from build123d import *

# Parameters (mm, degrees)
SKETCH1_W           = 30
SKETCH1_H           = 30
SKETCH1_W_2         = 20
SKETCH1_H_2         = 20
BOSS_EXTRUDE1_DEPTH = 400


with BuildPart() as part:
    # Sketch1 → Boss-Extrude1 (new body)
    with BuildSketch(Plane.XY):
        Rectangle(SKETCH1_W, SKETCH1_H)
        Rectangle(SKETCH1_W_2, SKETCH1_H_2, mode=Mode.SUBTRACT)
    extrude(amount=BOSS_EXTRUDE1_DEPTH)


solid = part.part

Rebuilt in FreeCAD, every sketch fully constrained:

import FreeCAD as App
import Part
import Sketcher

V = App.Vector
Q = App.Units.Quantity


def add_polygon(sketch, points):
    """Adds a closed chain of lines whose ends are joined by coincident constraints."""
    first, n = sketch.GeometryCount, len(points)
    for a, b in zip(points, points[1:] + points[:1]):
        sketch.addGeometry(Part.LineSegment(App.Vector(*a, 0), App.Vector(*b, 0)), False)
    for i in range(n):
        sketch.addConstraint(Sketcher.Constraint("Coincident", first + i, 2, first + (i + 1) % n, 1))

doc = App.newDocument("Part")
body = doc.addObject("PartDesign::Body", "Body")

sketch1 = body.newObject("Sketcher::SketchObject", "Sketch")
sketch1.AttachmentSupport = (doc.getObject("XY_Plane"), [""])
sketch1.MapMode = "FlatFace"
add_polygon(sketch1, [(-15, 15), (-15, -15), (15, -15), (15, 15)])
add_polygon(sketch1, [(10, -10), (-10, -10), (-10, 10), (10, 10)])
sketch1.addConstraint([
    Sketcher.Constraint("Vertical", 0),
    Sketcher.Constraint("Horizontal", 1),
    Sketcher.Constraint("Vertical", 2),
    Sketcher.Constraint("Horizontal", 3),
    Sketcher.Constraint("Horizontal", 4),
    Sketcher.Constraint("Vertical", 5),
    Sketcher.Constraint("Horizontal", 6),
    Sketcher.Constraint("Vertical", 7),
    Sketcher.Constraint("Symmetric", 0, 2, 2, 2, -1, 1),
    Sketcher.Constraint("Symmetric", 4, 2, 6, 2, -1, 1),
    Sketcher.Constraint("Equal", 3, 0),
    Sketcher.Constraint("Equal", 6, 5),
    Sketcher.Constraint("DistanceX", 1, 1, 1, 2, Q("30 mm")),
    Sketcher.Constraint("DistanceX", 4, 2, 4, 1, Q("20 mm")),
])
pad1 = body.newObject("PartDesign::Pad", "Pad")
pad1.Profile = sketch1
pad1.Length = 400

doc.recompute()
